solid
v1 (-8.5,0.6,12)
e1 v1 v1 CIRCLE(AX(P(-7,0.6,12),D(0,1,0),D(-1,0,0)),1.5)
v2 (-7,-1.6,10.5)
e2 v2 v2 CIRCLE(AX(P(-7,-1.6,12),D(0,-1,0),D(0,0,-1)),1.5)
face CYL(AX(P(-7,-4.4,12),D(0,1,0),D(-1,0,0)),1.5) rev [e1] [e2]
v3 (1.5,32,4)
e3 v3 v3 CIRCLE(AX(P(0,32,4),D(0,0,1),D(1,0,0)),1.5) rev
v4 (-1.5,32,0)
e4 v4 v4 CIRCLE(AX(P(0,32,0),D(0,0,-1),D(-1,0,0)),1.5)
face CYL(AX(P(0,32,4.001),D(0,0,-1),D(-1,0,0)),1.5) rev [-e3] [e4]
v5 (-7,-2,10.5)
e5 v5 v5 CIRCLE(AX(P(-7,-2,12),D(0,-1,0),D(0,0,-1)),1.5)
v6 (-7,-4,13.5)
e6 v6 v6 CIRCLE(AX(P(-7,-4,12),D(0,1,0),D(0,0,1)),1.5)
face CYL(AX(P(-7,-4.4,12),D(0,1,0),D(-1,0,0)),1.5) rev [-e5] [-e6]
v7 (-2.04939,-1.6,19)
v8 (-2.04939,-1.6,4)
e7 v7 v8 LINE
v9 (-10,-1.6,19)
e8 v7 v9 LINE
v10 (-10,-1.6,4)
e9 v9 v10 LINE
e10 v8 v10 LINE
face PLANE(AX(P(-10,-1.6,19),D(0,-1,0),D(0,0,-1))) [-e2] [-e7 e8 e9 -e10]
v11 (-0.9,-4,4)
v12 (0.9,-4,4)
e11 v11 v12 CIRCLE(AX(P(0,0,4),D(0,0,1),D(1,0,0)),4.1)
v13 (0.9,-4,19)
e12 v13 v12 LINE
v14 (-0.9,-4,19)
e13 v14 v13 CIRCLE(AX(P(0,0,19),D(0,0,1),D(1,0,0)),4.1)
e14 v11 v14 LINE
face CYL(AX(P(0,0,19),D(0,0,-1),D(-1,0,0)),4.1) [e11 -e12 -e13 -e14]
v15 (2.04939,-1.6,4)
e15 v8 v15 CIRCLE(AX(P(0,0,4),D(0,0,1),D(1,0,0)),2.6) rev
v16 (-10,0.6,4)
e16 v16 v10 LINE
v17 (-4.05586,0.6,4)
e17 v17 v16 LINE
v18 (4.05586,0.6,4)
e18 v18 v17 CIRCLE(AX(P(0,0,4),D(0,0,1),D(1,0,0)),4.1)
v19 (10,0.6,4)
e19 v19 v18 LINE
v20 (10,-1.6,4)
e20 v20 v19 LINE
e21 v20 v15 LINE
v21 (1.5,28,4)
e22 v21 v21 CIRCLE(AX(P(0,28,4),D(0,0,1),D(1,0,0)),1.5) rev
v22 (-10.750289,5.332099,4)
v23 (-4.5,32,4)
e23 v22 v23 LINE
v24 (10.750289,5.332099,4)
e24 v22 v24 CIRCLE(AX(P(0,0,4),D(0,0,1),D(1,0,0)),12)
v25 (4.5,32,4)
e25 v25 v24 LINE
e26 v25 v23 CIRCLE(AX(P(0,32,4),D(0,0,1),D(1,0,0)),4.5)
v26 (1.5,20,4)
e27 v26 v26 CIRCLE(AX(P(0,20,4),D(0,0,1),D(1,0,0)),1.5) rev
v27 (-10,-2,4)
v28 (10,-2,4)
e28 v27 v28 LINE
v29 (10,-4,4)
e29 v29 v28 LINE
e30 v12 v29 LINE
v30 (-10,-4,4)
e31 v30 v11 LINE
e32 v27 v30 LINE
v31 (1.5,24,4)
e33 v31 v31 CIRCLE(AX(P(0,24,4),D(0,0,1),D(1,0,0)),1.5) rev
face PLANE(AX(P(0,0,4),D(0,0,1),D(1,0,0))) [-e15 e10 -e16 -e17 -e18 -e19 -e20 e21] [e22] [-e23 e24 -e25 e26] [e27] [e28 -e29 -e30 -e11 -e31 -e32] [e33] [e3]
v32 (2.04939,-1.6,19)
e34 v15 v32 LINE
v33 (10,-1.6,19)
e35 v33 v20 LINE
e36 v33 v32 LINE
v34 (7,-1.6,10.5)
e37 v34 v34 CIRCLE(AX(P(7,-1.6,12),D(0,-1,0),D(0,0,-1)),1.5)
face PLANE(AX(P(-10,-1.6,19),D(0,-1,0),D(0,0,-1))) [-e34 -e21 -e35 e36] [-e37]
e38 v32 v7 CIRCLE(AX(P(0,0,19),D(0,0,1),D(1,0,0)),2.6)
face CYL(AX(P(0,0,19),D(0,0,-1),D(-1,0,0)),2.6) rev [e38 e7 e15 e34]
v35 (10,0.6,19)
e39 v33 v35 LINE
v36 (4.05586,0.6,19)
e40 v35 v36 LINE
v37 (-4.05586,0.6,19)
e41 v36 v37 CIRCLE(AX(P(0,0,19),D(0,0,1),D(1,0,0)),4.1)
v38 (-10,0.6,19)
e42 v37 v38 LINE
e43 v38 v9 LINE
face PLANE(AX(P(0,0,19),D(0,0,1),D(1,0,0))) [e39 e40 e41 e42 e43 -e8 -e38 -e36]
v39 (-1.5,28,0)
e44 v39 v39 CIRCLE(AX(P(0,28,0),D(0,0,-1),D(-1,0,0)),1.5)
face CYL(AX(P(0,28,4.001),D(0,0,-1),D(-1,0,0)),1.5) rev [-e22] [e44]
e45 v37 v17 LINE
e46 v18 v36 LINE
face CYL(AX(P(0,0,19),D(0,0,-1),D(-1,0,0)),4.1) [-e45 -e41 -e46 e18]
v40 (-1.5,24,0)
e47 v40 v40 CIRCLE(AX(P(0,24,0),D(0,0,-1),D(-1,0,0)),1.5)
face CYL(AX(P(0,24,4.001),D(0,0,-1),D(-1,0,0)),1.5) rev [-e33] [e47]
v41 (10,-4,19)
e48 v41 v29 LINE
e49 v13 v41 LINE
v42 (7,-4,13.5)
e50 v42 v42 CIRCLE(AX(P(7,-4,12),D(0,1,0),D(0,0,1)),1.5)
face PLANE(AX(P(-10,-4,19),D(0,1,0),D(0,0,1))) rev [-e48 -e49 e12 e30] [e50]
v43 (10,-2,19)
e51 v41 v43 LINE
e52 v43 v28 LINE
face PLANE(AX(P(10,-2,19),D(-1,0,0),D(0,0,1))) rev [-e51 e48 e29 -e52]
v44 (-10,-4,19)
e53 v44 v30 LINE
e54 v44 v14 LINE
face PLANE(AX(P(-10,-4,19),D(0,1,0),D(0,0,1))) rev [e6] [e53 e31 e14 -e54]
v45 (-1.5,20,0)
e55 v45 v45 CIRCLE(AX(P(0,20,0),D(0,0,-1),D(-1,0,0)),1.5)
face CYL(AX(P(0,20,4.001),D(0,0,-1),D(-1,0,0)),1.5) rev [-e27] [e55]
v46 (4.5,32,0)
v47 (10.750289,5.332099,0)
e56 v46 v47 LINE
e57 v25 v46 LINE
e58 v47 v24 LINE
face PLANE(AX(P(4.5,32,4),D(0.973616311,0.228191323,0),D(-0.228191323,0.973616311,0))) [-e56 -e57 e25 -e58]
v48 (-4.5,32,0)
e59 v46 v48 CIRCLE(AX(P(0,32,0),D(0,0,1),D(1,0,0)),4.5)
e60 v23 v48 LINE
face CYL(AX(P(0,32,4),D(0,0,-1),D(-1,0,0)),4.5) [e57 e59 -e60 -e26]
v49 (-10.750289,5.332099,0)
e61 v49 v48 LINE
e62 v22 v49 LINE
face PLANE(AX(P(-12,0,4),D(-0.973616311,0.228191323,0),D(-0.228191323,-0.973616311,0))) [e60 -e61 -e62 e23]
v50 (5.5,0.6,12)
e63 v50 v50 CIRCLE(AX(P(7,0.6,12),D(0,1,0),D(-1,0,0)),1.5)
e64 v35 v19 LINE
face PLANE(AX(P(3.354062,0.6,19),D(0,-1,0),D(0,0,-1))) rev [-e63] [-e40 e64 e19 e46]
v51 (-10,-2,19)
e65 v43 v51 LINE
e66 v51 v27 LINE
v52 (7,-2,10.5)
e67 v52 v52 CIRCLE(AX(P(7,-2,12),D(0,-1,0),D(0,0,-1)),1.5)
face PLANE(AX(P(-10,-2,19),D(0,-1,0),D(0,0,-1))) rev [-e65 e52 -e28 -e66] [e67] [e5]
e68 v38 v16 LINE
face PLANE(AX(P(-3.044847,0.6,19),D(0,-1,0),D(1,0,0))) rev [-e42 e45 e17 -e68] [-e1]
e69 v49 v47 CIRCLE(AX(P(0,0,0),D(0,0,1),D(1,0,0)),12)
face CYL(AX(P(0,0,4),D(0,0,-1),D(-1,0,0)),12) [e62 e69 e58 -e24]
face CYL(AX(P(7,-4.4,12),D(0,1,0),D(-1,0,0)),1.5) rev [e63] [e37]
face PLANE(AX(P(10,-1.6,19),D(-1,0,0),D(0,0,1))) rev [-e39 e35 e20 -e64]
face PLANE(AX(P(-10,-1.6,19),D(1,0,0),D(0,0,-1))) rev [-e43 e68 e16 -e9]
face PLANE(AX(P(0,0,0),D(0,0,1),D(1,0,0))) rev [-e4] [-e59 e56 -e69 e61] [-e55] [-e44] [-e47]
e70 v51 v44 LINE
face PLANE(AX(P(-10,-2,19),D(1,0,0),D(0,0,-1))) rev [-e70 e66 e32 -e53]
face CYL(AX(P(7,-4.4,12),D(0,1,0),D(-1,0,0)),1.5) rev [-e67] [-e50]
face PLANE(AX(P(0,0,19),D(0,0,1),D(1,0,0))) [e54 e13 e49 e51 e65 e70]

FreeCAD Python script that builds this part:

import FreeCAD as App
import Part
import Sketcher

V = App.Vector


def add_polygon(sketch, points):
    """Adds a closed chain of lines whose ends are joined by coincident constraints."""
    first, n = sketch.GeometryCount, len(points)
    for a, b in zip(points, points[1:] + points[:1]):
        sketch.addGeometry(Part.LineSegment(App.Vector(*a, 0), App.Vector(*b, 0)), False)
    for i in range(n):
        sketch.addConstraint(Sketcher.Constraint("Coincident", first + i, 2, first + (i + 1) % n, 1))

doc = App.newDocument("Part")
body = doc.addObject("PartDesign::Body", "Body")

# Sketch on XY plane
sketch1 = body.newObject("Sketcher::SketchObject", "Sketch")
sketch1.AttachmentSupport = (doc.getObject("XY_Plane"), [""])
sketch1.MapMode = "FlatFace"
sketch1.addGeometry(Part.Circle(V(0, 0, 0), V(0, 0, 1), 12), False)
sketch1.addConstraint([
    Sketcher.Constraint("Coincident", 0, 3, -1, 1),
    Sketcher.Constraint("Diameter", 0, 24.0),
])
pad1 = body.newObject("PartDesign::Pad", "Pad")
pad1.Profile = sketch1
pad1.Length = 4
body2 = doc.addObject("PartDesign::Body", "Body001")

# Sketch on XY plane
sketch2 = body2.newObject("Sketcher::SketchObject", "Sketch001")
sketch2.AttachmentSupport = (doc.getObject("XY_Plane001"), [""])
sketch2.MapMode = "FlatFace"
sketch2.addGeometry(Part.Circle(V(0, 32, 0), V(0, 0, 1), 4.5), False)
sketch2.addConstraint([
    Sketcher.Constraint("PointOnObject", 0, 3, -2),
    Sketcher.Constraint("Diameter", 0, 9.0),
    Sketcher.Constraint("DistanceY", -1, 1, 0, 3, 32.0),
])
pad2 = body2.newObject("PartDesign::Pad", "Pad001")
pad2.Profile = sketch2
pad2.Length = 4
body.AllowCompound = True
doc.recompute()

boolean = body.newObject("PartDesign::Boolean", "Boolean")
boolean.Type = "Fuse"
boolean.addObjects([body2])

# Sketch on XY plane
sketch3 = body.newObject("Sketcher::SketchObject", "Sketch002")
sketch3.AttachmentSupport = (doc.getObject("XY_Plane"), [""])
sketch3.MapMode = "FlatFace"
add_polygon(sketch3, [(4.5, 32), (12, 0), (-12, 0), (-4.5, 32)])  # lines 0-3
sketch3.addConstraint([
    Sketcher.Constraint("Horizontal", 1),
    Sketcher.Constraint("Horizontal", 3),
    Sketcher.Constraint("Symmetric", 0, 2, 1, 2, -1, 1),
    Sketcher.Constraint("Equal", 0, 2),
    Sketcher.Constraint("DistanceX", 1, 2, 1, 1, 24.0),
    Sketcher.Constraint("DistanceX", 3, 1, 3, 2, 9.0),
    Sketcher.Constraint("DistanceY", -1, 1, 2, 2, 32.0),
])
pad3 = body.newObject("PartDesign::Pad", "Pad002")
pad3.Profile = sketch3
pad3.Length = 4

# Sketch on XY plane
sketch4 = body.newObject("Sketcher::SketchObject", "Sketch003")
sketch4.AttachmentSupport = (doc.getObject("XY_Plane"), [""])
sketch4.MapMode = "FlatFace"
sketch4.addGeometry(Part.Circle(V(0, 32, 0), V(0, 0, 1), 1.5), False)
sketch4.addConstraint([
    Sketcher.Constraint("PointOnObject", 0, 3, -2),
    Sketcher.Constraint("Diameter", 0, 3.0),
    Sketcher.Constraint("DistanceY", -1, 1, 0, 3, 32.0),
])
pocket1 = body.newObject("PartDesign::Pocket", "Pocket")
pocket1.Profile = sketch4
pocket1.Type = "UpToFirst"
pocket1.Reversed = True

# Sketch on XY plane
sketch5 = body.newObject("Sketcher::SketchObject", "Sketch004")
sketch5.AttachmentSupport = (doc.getObject("XY_Plane"), [""])
sketch5.MapMode = "FlatFace"
sketch5.addGeometry(Part.Circle(V(0, 28, 0), V(0, 0, 1), 1.5), False)
sketch5.addConstraint([
    Sketcher.Constraint("PointOnObject", 0, 3, -2),
    Sketcher.Constraint("Diameter", 0, 3.0),
    Sketcher.Constraint("DistanceY", -1, 1, 0, 3, 28.0),
])
pocket2 = body.newObject("PartDesign::Pocket", "Pocket001")
pocket2.Profile = sketch5
pocket2.Type = "UpToFirst"
pocket2.Reversed = True

# Sketch on XY plane
sketch6 = body.newObject("Sketcher::SketchObject", "Sketch005")
sketch6.AttachmentSupport = (doc.getObject("XY_Plane"), [""])
sketch6.MapMode = "FlatFace"
sketch6.addGeometry(Part.Circle(V(0, 24, 0), V(0, 0, 1), 1.5), False)
sketch6.addConstraint([
    Sketcher.Constraint("PointOnObject", 0, 3, -2),
    Sketcher.Constraint("Diameter", 0, 3.0),
    Sketcher.Constraint("DistanceY", -1, 1, 0, 3, 24.0),
])
pocket3 = body.newObject("PartDesign::Pocket", "Pocket002")
pocket3.Profile = sketch6
pocket3.Type = "UpToFirst"
pocket3.Reversed = True

# Sketch on XY plane
sketch7 = body.newObject("Sketcher::SketchObject", "Sketch006")
sketch7.AttachmentSupport = (doc.getObject("XY_Plane"), [""])
sketch7.MapMode = "FlatFace"
sketch7.addGeometry(Part.Circle(V(0, 20, 0), V(0, 0, 1), 1.5), False)
sketch7.addConstraint([
    Sketcher.Constraint("PointOnObject", 0, 3, -2),
    Sketcher.Constraint("Diameter", 0, 3.0),
    Sketcher.Constraint("DistanceY", -1, 1, 0, 3, 20.0),
])
pocket4 = body.newObject("PartDesign::Pocket", "Pocket003")
pocket4.Profile = sketch7
pocket4.Type = "UpToFirst"
pocket4.Reversed = True

# Sketch on XY plane
sketch8 = body.newObject("Sketcher::SketchObject", "Sketch007")
sketch8.AttachmentSupport = (doc.getObject("XY_Plane"), [""])
sketch8.MapMode = "FlatFace"
sketch8.AttachmentOffset = App.Placement(V(0, 0, 4), App.Rotation())
sketch8.addGeometry([
    Part.Circle(V(0, 0, 0), V(0, 0, 1), 4.1),
    Part.Circle(V(0, 0, 0), V(0, 0, 1), 2.6),
], False)
sketch8.addConstraint([
    Sketcher.Constraint("Coincident", 0, 3, -1, 1),
    Sketcher.Constraint("Coincident", 1, 3, -1, 1),
    Sketcher.Constraint("Diameter", 0, 8.2),
    Sketcher.Constraint("Diameter", 1, 5.2),
])
pad4 = body.newObject("PartDesign::Pad", "Pad003")
pad4.Profile = sketch8
pad4.Length = 15

# Sketch on XY plane
sketch9 = body.newObject("Sketcher::SketchObject", "Sketch008")
sketch9.AttachmentSupport = (doc.getObject("XY_Plane"), [""])
sketch9.MapMode = "FlatFace"
sketch9.AttachmentOffset = App.Placement(V(0, 0, 4), App.Rotation())
add_polygon(sketch9, [(-10, -2), (-10, -4), (10, -4), (10, -2)])  # lines 0-3
sketch9.addConstraint([
    Sketcher.Constraint("Vertical", 0),
    Sketcher.Constraint("Horizontal", 1),
    Sketcher.Constraint("Vertical", 2),
    Sketcher.Constraint("Horizontal", 3),
    Sketcher.Constraint("DistanceX", 1, 1, 1, 2, 20.0),
    Sketcher.Constraint("DistanceY", 0, 2, 0, 1, 2.0),
    Sketcher.Constraint("DistanceX", 0, 2, -1, 1, 10.0),
    Sketcher.Constraint("DistanceY", 0, 2, -1, 1, 4.0),
])
pad5 = body.newObject("PartDesign::Pad", "Pad004")
pad5.Profile = sketch9
pad5.Length = 15

# Sketch on XY plane
sketch10 = body.newObject("Sketcher::SketchObject", "Sketch009")
sketch10.AttachmentSupport = (doc.getObject("XY_Plane"), [""])
sketch10.MapMode = "FlatFace"
sketch10.AttachmentOffset = App.Placement(V(0, 0, 4), App.Rotation())
add_polygon(sketch10, [(-10, -1.6), (-10, -2), (6, -2), (6, -1.6)])  # lines 0-3
sketch10.addConstraint([
    Sketcher.Constraint("Vertical", 0),
    Sketcher.Constraint("Horizontal", 1),
    Sketcher.Constraint("Vertical", 2),
    Sketcher.Constraint("Horizontal", 3),
    Sketcher.Constraint("DistanceX", 1, 1, 1, 2, 16.0),
    Sketcher.Constraint("DistanceY", 0, 2, 0, 1, 0.4),
    Sketcher.Constraint("DistanceX", 0, 2, -1, 1, 10.0),
    Sketcher.Constraint("DistanceY", 0, 2, -1, 1, 2.0),
])
pocket5 = body.newObject("PartDesign::Pocket", "Pocket004")
pocket5.Profile = sketch10
pocket5.Length = 15
pocket5.Reversed = True

# Sketch on XY plane
sketch11 = body.newObject("Sketcher::SketchObject", "Sketch010")
sketch11.AttachmentSupport = (doc.getObject("XY_Plane"), [""])
sketch11.MapMode = "FlatFace"
sketch11.AttachmentOffset = App.Placement(V(0, 0, 4), App.Rotation())
add_polygon(sketch11, [(-10, 0.6), (-10, -1.6), (-3.044847, -1.6), (-3.044847, 0.6)])  # lines 0-3
add_polygon(sketch11, [(3.354062, 0.6), (3.354062, -1.6), (10, -1.6), (10, 0.6)])  # lines 4-7
sketch11.addConstraint([
    Sketcher.Constraint("Vertical", 0),
    Sketcher.Constraint("Horizontal", 1),
    Sketcher.Constraint("Vertical", 2),
    Sketcher.Constraint("Horizontal", 3),
    Sketcher.Constraint("Vertical", 4),
    Sketcher.Constraint("Horizontal", 5),
    Sketcher.Constraint("Vertical", 6),
    Sketcher.Constraint("Horizontal", 7),
    Sketcher.Constraint("Symmetric", 0, 2, 5, 2, -2),
    Sketcher.Constraint("Horizontal", 3, 2, 6, 2),
    Sketcher.Constraint("DistanceY", 0, 2, 0, 1, 2.2),
    Sketcher.Constraint("DistanceX", 0, 2, -1, 1, 10.0),
    Sketcher.Constraint("DistanceY", 0, 2, -1, 1, 1.6),
    Sketcher.Constraint("DistanceX", 1, 1, 1, 2, 6.955153),
    Sketcher.Constraint("DistanceX", 5, 1, 5, 2, 6.645938),
])
pad6 = body.newObject("PartDesign::Pad", "Pad005")
pad6.Profile = sketch11
pad6.Length = 15

# Sketch on XZ plane
sketch12 = body.newObject("Sketcher::SketchObject", "Sketch011")
sketch12.AttachmentSupport = (doc.getObject("XZ_Plane"), [""])
sketch12.MapMode = "FlatFace"
sketch12.AttachmentOffset = App.Placement(V(0, 0, -0.6), App.Rotation())
sketch12.addGeometry([
    Part.Circle(V(-7, 12, 0), V(0, 0, 1), 1.5),
    Part.Circle(V(7, 12, 0), V(0, 0, 1), 1.5),
], False)
sketch12.addConstraint([
    Sketcher.Constraint("Equal", 0, 1),
    Sketcher.Constraint("Symmetric", 0, 3, 1, 3, -2),
    Sketcher.Constraint("Diameter", 0, 3.0),
    Sketcher.Constraint("DistanceX", 0, 3, -1, 1, 7.0),
    Sketcher.Constraint("DistanceY", -1, 1, 0, 3, 12.0),
])
pocket6 = body.newObject("PartDesign::Pocket", "Pocket005")
pocket6.Profile = sketch12
pocket6.Length = 5
pocket6.Reversed = True

doc.recompute()
